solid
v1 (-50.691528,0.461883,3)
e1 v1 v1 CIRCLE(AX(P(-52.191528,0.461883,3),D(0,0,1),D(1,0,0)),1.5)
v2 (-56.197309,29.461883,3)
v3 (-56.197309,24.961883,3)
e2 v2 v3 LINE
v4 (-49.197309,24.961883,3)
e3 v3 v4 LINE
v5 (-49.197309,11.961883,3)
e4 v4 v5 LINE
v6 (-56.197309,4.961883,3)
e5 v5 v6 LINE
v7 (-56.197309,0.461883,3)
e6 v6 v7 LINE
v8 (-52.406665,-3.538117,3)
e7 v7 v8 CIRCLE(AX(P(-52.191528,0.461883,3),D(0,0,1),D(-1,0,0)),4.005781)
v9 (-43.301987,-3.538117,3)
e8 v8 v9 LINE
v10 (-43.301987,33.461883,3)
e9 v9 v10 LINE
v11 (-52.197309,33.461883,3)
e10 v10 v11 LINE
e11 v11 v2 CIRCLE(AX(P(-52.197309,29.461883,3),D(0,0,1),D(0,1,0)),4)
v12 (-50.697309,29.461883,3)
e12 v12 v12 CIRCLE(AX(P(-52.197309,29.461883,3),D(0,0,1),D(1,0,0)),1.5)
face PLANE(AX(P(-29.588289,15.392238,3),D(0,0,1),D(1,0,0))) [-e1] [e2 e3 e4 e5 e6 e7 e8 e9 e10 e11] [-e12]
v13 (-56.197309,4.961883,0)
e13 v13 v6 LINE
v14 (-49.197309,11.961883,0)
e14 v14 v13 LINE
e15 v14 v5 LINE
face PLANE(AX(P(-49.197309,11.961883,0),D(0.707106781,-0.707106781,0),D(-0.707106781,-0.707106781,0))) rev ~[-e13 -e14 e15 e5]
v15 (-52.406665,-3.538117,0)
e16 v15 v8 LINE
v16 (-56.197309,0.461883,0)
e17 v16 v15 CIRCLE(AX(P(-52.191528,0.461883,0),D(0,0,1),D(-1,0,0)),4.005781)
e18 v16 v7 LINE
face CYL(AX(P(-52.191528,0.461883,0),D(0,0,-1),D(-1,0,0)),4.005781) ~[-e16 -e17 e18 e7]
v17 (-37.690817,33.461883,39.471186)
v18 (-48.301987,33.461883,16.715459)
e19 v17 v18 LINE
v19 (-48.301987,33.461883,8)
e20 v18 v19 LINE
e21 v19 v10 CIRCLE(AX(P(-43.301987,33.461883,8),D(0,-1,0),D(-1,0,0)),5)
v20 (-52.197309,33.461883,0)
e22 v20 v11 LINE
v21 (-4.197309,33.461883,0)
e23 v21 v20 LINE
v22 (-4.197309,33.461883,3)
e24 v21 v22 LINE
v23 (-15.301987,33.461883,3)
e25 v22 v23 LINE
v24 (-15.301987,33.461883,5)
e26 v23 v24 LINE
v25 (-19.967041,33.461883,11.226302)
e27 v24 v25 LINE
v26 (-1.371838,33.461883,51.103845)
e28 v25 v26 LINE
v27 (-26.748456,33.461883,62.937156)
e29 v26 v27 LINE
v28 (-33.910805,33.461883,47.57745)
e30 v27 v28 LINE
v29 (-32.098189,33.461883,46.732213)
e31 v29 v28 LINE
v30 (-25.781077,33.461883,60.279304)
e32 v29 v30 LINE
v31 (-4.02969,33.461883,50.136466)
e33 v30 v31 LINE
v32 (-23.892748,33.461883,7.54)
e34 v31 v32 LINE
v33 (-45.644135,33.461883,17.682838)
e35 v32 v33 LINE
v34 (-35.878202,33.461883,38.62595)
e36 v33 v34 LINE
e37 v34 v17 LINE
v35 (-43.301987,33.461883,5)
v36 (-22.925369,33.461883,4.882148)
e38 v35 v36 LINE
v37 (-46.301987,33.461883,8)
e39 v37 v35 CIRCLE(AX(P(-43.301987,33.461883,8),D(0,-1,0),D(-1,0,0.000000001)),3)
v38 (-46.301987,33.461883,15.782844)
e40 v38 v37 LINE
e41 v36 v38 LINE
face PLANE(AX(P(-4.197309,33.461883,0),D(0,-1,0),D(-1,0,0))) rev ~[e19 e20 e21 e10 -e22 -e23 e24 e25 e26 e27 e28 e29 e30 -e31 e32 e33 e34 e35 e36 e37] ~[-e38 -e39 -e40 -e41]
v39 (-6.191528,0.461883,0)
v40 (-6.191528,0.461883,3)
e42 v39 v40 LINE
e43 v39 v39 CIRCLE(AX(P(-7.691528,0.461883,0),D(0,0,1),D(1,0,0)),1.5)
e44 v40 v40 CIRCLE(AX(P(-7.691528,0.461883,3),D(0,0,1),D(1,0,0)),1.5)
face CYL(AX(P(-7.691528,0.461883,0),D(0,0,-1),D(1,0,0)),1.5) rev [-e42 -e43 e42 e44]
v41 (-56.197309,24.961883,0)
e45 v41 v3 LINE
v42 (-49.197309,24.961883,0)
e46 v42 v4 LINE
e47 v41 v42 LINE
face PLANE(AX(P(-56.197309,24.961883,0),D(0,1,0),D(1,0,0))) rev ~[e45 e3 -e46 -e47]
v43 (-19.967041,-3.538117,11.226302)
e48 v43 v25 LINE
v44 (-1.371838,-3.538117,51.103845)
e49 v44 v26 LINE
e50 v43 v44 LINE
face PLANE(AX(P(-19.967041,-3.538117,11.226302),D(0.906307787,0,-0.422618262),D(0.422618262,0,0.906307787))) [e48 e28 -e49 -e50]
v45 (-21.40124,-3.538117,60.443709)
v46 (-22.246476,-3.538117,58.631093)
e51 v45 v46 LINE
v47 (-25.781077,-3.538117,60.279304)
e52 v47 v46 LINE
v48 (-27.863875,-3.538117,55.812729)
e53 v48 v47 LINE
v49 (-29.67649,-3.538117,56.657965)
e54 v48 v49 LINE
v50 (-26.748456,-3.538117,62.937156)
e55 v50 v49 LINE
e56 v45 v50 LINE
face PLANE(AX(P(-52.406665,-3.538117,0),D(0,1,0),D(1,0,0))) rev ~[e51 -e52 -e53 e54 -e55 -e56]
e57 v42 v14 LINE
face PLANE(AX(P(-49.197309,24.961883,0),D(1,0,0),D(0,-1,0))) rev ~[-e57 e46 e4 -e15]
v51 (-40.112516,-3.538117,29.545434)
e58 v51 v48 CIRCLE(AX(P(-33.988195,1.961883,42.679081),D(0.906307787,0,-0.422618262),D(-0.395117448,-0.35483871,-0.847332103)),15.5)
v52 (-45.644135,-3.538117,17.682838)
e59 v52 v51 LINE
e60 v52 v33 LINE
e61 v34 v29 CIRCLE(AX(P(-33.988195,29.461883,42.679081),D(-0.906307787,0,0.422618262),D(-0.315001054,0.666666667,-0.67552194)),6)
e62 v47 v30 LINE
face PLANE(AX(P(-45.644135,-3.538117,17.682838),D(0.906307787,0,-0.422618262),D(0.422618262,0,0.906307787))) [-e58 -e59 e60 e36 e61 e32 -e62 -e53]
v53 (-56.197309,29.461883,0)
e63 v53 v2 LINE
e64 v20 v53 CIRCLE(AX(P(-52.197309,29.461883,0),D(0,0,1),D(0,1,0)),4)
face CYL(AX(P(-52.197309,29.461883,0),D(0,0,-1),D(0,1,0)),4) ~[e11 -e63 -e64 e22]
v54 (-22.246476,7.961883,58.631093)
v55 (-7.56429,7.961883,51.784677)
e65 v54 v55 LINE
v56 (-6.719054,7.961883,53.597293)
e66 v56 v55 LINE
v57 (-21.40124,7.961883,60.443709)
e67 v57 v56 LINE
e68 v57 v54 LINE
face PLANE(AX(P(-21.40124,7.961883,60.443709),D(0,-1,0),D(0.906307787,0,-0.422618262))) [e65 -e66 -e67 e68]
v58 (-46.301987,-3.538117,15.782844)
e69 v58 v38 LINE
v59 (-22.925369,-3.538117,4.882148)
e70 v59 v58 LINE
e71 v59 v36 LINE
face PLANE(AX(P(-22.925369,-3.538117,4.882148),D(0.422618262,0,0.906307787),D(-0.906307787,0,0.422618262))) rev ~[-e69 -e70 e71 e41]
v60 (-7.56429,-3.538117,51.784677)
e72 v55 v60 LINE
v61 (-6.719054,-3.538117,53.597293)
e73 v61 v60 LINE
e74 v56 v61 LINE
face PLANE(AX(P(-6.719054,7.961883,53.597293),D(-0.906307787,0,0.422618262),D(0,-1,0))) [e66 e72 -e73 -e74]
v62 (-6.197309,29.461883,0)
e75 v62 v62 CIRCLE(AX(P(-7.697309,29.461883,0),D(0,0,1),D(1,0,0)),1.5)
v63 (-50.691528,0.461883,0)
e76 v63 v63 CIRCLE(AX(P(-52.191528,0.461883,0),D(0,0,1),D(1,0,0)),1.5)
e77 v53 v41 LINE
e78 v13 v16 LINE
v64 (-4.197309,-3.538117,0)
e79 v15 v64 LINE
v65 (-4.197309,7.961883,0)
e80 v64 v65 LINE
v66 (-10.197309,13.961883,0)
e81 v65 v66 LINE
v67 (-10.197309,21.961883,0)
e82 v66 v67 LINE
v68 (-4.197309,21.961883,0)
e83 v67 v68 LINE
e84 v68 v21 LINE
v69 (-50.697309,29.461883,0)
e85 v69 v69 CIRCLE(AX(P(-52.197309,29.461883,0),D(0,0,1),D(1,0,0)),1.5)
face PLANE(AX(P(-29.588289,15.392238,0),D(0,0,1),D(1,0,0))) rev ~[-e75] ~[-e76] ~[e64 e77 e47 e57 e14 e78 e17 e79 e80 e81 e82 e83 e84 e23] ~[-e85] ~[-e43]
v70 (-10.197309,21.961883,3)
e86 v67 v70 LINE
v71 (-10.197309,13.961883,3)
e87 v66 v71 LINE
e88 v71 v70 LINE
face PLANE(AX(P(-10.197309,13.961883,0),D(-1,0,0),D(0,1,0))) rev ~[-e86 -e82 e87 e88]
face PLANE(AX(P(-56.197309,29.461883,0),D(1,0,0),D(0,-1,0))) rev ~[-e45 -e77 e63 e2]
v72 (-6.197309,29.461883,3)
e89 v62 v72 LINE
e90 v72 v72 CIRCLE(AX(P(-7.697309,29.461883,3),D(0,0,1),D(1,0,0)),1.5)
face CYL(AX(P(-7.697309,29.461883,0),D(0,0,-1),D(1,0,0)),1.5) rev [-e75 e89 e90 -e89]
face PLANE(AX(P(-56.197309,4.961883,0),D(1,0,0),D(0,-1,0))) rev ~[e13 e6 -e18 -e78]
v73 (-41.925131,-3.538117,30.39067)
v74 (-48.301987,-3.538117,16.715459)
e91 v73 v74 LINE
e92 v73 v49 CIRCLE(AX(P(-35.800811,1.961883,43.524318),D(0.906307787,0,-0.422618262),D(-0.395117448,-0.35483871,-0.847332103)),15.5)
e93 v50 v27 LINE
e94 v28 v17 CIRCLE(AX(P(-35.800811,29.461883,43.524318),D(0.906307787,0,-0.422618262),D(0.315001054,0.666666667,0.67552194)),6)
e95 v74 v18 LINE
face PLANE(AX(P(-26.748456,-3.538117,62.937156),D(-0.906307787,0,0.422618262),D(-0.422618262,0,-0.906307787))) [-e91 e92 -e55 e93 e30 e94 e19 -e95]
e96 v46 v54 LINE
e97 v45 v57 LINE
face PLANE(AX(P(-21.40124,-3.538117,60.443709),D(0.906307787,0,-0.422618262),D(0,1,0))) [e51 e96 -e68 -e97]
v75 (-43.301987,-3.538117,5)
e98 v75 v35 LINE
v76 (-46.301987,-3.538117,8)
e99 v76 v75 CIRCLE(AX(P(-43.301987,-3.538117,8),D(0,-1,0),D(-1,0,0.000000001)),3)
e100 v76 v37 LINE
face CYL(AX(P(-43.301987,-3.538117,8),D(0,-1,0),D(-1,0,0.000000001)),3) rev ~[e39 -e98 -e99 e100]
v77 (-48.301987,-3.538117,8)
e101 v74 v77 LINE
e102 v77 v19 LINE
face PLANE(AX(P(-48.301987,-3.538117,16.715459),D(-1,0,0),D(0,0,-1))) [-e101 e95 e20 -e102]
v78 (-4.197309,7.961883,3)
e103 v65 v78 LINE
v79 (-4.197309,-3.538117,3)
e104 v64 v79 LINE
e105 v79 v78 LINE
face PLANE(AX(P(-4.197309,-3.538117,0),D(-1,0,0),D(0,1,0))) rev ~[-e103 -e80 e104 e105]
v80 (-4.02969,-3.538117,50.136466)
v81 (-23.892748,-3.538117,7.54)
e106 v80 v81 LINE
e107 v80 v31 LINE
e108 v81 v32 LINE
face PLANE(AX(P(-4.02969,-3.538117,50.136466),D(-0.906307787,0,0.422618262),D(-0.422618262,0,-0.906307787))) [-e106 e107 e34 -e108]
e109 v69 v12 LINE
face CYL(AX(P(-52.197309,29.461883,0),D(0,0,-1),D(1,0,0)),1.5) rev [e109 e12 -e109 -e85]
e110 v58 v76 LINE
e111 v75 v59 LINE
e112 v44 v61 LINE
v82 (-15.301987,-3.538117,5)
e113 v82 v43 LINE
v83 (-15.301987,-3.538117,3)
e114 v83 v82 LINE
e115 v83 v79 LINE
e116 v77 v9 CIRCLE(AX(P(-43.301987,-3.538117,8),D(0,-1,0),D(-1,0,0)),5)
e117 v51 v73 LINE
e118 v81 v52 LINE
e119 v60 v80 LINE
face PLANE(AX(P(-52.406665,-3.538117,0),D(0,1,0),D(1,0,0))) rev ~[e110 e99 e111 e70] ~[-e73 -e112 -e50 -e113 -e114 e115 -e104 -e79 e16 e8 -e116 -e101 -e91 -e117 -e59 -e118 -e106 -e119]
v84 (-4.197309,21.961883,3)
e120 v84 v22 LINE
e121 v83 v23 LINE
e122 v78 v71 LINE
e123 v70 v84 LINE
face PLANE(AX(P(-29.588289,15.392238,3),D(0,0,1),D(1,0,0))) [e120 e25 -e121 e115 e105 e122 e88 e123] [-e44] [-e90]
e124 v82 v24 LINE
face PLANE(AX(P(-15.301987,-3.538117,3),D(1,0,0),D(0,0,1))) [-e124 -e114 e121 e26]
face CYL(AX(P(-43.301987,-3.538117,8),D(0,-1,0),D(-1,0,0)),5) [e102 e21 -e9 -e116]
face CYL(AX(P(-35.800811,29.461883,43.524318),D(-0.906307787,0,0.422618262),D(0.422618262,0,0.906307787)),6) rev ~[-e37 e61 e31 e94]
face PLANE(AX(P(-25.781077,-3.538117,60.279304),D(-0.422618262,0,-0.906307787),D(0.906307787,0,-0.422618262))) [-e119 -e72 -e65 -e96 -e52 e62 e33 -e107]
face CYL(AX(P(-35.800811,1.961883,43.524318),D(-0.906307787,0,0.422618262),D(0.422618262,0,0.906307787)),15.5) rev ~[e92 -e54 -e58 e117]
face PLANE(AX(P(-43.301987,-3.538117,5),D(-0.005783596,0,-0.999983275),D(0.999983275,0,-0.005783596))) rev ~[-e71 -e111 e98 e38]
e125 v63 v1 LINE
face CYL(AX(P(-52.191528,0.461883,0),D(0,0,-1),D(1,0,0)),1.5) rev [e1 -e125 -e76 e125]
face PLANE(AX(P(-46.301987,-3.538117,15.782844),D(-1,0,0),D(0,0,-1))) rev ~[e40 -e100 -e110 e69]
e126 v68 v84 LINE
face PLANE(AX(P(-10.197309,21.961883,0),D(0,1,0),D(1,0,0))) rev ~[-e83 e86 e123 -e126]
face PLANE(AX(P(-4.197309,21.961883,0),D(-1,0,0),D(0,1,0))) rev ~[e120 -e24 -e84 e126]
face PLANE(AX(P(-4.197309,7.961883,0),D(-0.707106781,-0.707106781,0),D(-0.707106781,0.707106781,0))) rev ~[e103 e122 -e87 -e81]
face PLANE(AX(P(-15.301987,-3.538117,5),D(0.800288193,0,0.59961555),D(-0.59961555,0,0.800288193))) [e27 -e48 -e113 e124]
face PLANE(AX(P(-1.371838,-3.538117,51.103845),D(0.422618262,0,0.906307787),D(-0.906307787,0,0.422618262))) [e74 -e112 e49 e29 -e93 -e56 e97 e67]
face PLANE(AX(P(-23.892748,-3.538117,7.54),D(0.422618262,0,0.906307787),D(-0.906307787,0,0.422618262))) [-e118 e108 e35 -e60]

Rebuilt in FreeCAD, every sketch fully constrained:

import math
import FreeCAD as App
import Part
import Sketcher
from FreeCAD import Vector
Q = App.Units.Quantity


def add_polygon(sketch, points):
    """Adds a closed chain of lines whose ends are joined by coincident constraints."""
    first, n = sketch.GeometryCount, len(points)
    for a, b in zip(points, points[1:] + points[:1]):
        sketch.addGeometry(Part.LineSegment(App.Vector(*a, 0), App.Vector(*b, 0)), False)
    for i in range(n):
        sketch.addConstraint(Sketcher.Constraint("Coincident", first + i, 2, first + (i + 1) % n, 1))

doc = App.newDocument("Part")
body = doc.addObject("PartDesign::Body", "Body")

sketch1 = doc.addObject("Sketcher::SketchObject", "Sketch")
body.addObject(sketch1)
sketch1.AttachmentSupport = (doc.XY_Plane, [""])
sketch1.MapMode = "FlatFace"
sketch1.addGeometry([
    Part.LineSegment(Vector(-49.2, 12, 0), Vector(-56.2, 5, 0)),
    Part.LineSegment(Vector(-56.2, 5, 0), Vector(-56.2, 0.5, 0)),
    Part.ArcOfCircle(Part.Circle(Vector(-52.2, 0.5, 0), Vector(0, 0, 1), 4), math.radians(180), math.radians(267)),
    Part.LineSegment(Vector(-52.4, -3.5, 0), Vector(-4.2, -3.5, 0)),
    Part.LineSegment(Vector(-4.2, -3.5, 0), Vector(-4.2, 8, 0)),
    Part.LineSegment(Vector(-4.2, 8, 0), Vector(-10.2, 14, 0)),
    Part.LineSegment(Vector(-10.2, 14, 0), Vector(-10.2, 22, 0)),
    Part.LineSegment(Vector(-10.2, 22, 0), Vector(-4.2, 22, 0)),
    Part.LineSegment(Vector(-4.2, 22, 0), Vector(-4.2, 33.5, 0)),
    Part.LineSegment(Vector(-4.2, 33.5, 0), Vector(-52.2, 33.5, 0)),
    Part.ArcOfCircle(Part.Circle(Vector(-52.2, 29.5, 0), Vector(0, 0, 1), 4), math.radians(90), math.radians(180)),
    Part.LineSegment(Vector(-56.2, 29.5, 0), Vector(-56.2, 25, 0)),
    Part.LineSegment(Vector(-56.2, 25, 0), Vector(-49.2, 25, 0)),
    Part.LineSegment(Vector(-49.2, 25, 0), Vector(-49.2, 12, 0)),
    Part.Circle(Vector(-52.2, 0.5, 0), Vector(0, 0, 1), 1.5),
    Part.Circle(Vector(-7.7, 0.5, 0), Vector(0, 0, 1), 1.5),
    Part.Circle(Vector(-52.2, 29.5, 0), Vector(0, 0, 1), 1.5),
    Part.Circle(Vector(-7.7, 29.5, 0), Vector(0, 0, 1), 1.5),
], False)
sketch1.addConstraint([
    Sketcher.Constraint("Coincident", 0, 2, 1, 1),
    Sketcher.Constraint("Tangent", 1, 2, 2, 1),
    Sketcher.Constraint("Coincident", 2, 2, 3, 1),
    Sketcher.Constraint("Coincident", 3, 2, 4, 1),
    Sketcher.Constraint("Coincident", 4, 2, 5, 1),
    Sketcher.Constraint("Coincident", 5, 2, 6, 1),
    Sketcher.Constraint("Coincident", 6, 2, 7, 1),
    Sketcher.Constraint("Coincident", 7, 2, 8, 1),
    Sketcher.Constraint("Coincident", 8, 2, 9, 1),
    Sketcher.Constraint("Tangent", 9, 2, 10, 1),
    Sketcher.Constraint("Tangent", 10, 2, 11, 1),
    Sketcher.Constraint("Coincident", 11, 2, 12, 1),
    Sketcher.Constraint("Coincident", 12, 2, 13, 1),
    Sketcher.Constraint("Coincident", 13, 2, 0, 1),
    Sketcher.Constraint("Vertical", 1),
    Sketcher.Constraint("Horizontal", 3),
    Sketcher.Constraint("Vertical", 4),
    Sketcher.Constraint("Vertical", 6),
    Sketcher.Constraint("Horizontal", 7),
    Sketcher.Constraint("Vertical", 8),
    Sketcher.Constraint("Horizontal", 9),
    Sketcher.Constraint("Vertical", 11),
    Sketcher.Constraint("Horizontal", 12),
    Sketcher.Constraint("Vertical", 13),
    Sketcher.Constraint("Coincident", 14, 3, 2, 3),
    Sketcher.Constraint("Coincident", 16, 3, 10, 3),
    Sketcher.Constraint("Equal", 14, 15),
    Sketcher.Constraint("Equal", 15, 16),
    Sketcher.Constraint("Equal", 16, 17),
    Sketcher.Constraint("Perpendicular", 0, 5),
    Sketcher.Constraint("Horizontal", 14, 3, 15, 3),
    Sketcher.Constraint("Horizontal", 16, 3, 17, 3),
    Sketcher.Constraint("Vertical", 4, 2, 7, 2),
    Sketcher.Constraint("Vertical", 1, 2, 10, 2),
    Sketcher.Constraint("Equal", 4, 8),
    Sketcher.Constraint("Equal", 1, 11),
    Sketcher.Constraint("Diameter", 14, Q("3 mm")),
    Sketcher.Constraint("Radius", 10, Q("4 mm")),
    Sketcher.Constraint("DistanceX", 7, 1, 7, 2, Q("6 mm")),
    Sketcher.Constraint("DistanceX", 9, 2, 9, 1, Q("48 mm")),
    Sketcher.Constraint("DistanceX", 12, 1, 12, 2, Q("7 mm")),
    Sketcher.Constraint("DistanceY", 6, 1, 6, 2, Q("8 mm")),
    Sketcher.Constraint("DistanceY", 13, 2, 13, 1, Q("13 mm")),
    Sketcher.Constraint("Angle", 0, Q("-135 deg")),
    Sketcher.Constraint("DistanceY", 1, 2, 1, 1, Q("4.5 mm")),
    Sketcher.Constraint("DistanceY", 4, 1, 4, 2, Q("11.5 mm")),
    Sketcher.Constraint("DistanceX", 2, 3, 15, 3, Q("44.5 mm")),
    Sketcher.Constraint("DistanceX", 16, 3, 17, 3, Q("44.5 mm")),
    Sketcher.Constraint("Radius", 2, Q("4.005781 mm")),
    Sketcher.Constraint("DistanceX", 2, 3, -1, 1, Q("52.191528 mm")),
    Sketcher.Constraint("DistanceY", -1, 1, 2, 3, Q("0.461883 mm")),
])
pad1 = doc.addObject("PartDesign::Pad", "Pad")
body.addObject(pad1)
pad1.Profile = sketch1
pad1.Length = 3

sketch2 = doc.addObject("Sketcher::SketchObject", "Sketch001")
body.addObject(sketch2)
sketch2.AttachmentSupport = (doc.XZ_Plane, [""])
sketch2.MapMode = "FlatFace"
sketch2.AttachmentOffset = App.Placement(Vector(0, 0, 3.538117), App.Rotation())
sketch2.addGeometry(Part.LineSegment(Vector(-15.3, 3, 0), Vector(-15.3, 5, 0)), False)
sketch2.addGeometry(Part.LineSegment(Vector(-15.3, 5, 0), Vector(-20, 11.2, 0)), False)
sketch2.addGeometry(Part.LineSegment(Vector(-20, 11.2, 0), Vector(-1.4, 51.1, 0)), False)
sketch2.addGeometry(Part.LineSegment(Vector(-1.4, 51.1, 0), Vector(-26.7, 62.9, 0)), False)
sketch2.addGeometry(Part.LineSegment(Vector(-26.7, 62.9, 0), Vector(-48.3, 16.7, 0)), False)
sketch2.addGeometry(Part.LineSegment(Vector(-48.3, 16.7, 0), Vector(-48.3, 8, 0)), False)
sketch2.addGeometry(Part.ArcOfCircle(Part.Circle(Vector(-43.3, 8, 0), Vector(0, 0, 1), 5), math.radians(180), math.radians(270)), False)
sketch2.addGeometry(Part.LineSegment(Vector(-43.3, 3, 0), Vector(-15.3, 3, 0)), False)
sketch2.addGeometry(Part.LineSegment(Vector(-22.9, 4.9, 0), Vector(-43.3, 5, 0)), False)
sketch2.addGeometry(Part.ArcOfCircle(Part.Circle(Vector(-43.3, 8, 0), Vector(0, 0, 1), 3), math.radians(180), math.radians(270)), False)
sketch2.addGeometry(Part.LineSegment(Vector(-46.3, 8, 0), Vector(-46.3, 15.8, 0)), False)
sketch2.addGeometry(Part.LineSegment(Vector(-46.3, 15.8, 0), Vector(-22.9, 4.9, 0)), False)
add_polygon(sketch2, [(-23.9, 7.5), (-45.6, 17.7), (-25.8, 60.3), (-4, 50.1)])
sketch2.addConstraint([
    Sketcher.Constraint("Coincident", 0, 2, 1, 1),
    Sketcher.Constraint("Coincident", 1, 2, 2, 1),
    Sketcher.Constraint("Coincident", 2, 2, 3, 1),
    Sketcher.Constraint("Coincident", 3, 2, 4, 1),
    Sketcher.Constraint("Coincident", 4, 2, 5, 1),
    Sketcher.Constraint("Tangent", 5, 2, 6, 1),
    Sketcher.Constraint("Tangent", 6, 2, 7, 1),
    Sketcher.Constraint("Coincident", 7, 2, 0, 1),
    Sketcher.Constraint("Coincident", 8, 2, 9, 2),
    Sketcher.Constraint("Tangent", 9, 1, 10, 1),
    Sketcher.Constraint("Coincident", 10, 2, 11, 1),
    Sketcher.Constraint("Coincident", 11, 2, 8, 1),
    Sketcher.Constraint("Vertical", 0),
    Sketcher.Constraint("Vertical", 5),
    Sketcher.Constraint("Horizontal", 7),
    Sketcher.Constraint("Vertical", 10),
    Sketcher.Constraint("Coincident", 9, 3, 6, 3),
    Sketcher.Constraint("Perpendicular", 2, 3),
    Sketcher.Constraint("Perpendicular", 3, 4),
    Sketcher.Constraint("Perpendicular", 4, 11),
    Sketcher.Constraint("Parallel", 11, 12),
    Sketcher.Constraint("Perpendicular", 12, 13),
    Sketcher.Constraint("Perpendicular", 13, 14),
    Sketcher.Constraint("Perpendicular", 14, 15),
    Sketcher.Constraint("Horizontal", 0, 2, 8, 2),
    Sketcher.Constraint("Vertical", 6, 2, 8, 2),
    Sketcher.Constraint("Radius", 6, Q("5 mm")),
    Sketcher.Constraint("Radius", 9, Q("3 mm")),
    Sketcher.Constraint("DistanceX", 7, 1, 7, 2, Q("28 mm")),
    Sketcher.Constraint("Angle", 2, Q("65 deg")),
    Sketcher.Constraint("Distance", 2, Q("44 mm")),
    Sketcher.Constraint("Distance", 3, Q("28 mm")),
    Sketcher.Constraint("Distance", 4, Q("51 mm")),
    Sketcher.Constraint("Distance", 12, Q("24 mm")),
    Sketcher.Constraint("Distance", 13, Q("47 mm")),
    Sketcher.Constraint("DistanceY", -1, 1, 6, 3, Q("8 mm")),
    Sketcher.Constraint("DistanceY", -1, 1, 15, 2, Q("7.54 mm")),
    Sketcher.Constraint("DistanceY", 5, 2, 5, 1, Q("8.715459 mm")),
    Sketcher.Constraint("Distance", 8, Q("20.376959 mm")),
    Sketcher.Constraint("DistanceY", 10, 1, 10, 2, Q("7.782844 mm")),
    Sketcher.Constraint("DistanceX", 1, 2, -1, 1, Q("19.967041 mm")),
    Sketcher.Constraint("DistanceX", 14, 2, -1, 1, Q("4.02969 mm")),
])
pad2 = doc.addObject("PartDesign::Pad", "Pad001")
body.addObject(pad2)
pad2.Profile = sketch2
pad2.Length = 37
pad2.Reversed = True

sketch3 = doc.addObject("Sketcher::SketchObject", "Sketch002")
body.addObject(sketch3)
sketch3.Placement = App.Placement(Vector(-46.077345, 0, 21.486219), App.Rotation(Vector(0.422618262, 0, 0.906307787), Vector(0, 1, 0), Vector(-0.906307787, 0, 0.422618262), "ZXY"))
sketch3.addGeometry([
    Part.Circle(Vector(24, 2, 0), Vector(0, 0, 1), 16),
    Part.Circle(Vector(24, 29, 0), Vector(0, 0, 1), 6),
], False)
sketch3.addConstraint([
    Sketcher.Constraint("Vertical", 0, 3, 1, 3),
    Sketcher.Constraint("Diameter", 0, Q("31 mm")),
    Sketcher.Constraint("Diameter", 1, Q("12 mm")),
    Sketcher.Constraint("DistanceY", 0, 3, 1, 3, Q("27.5 mm")),
    Sketcher.Constraint("DistanceX", -1, 1, 0, 3, Q("24.316352 mm")),
    Sketcher.Constraint("DistanceY", -1, 1, 0, 3, Q("1.961883 mm")),
])
pocket1 = doc.addObject("PartDesign::Pocket", "Pocket")
body.addObject(pocket1)
pocket1.Profile = sketch3
pocket1.Length = 2

sketch4 = doc.addObject("Sketcher::SketchObject", "Sketch003")
body.addObject(sketch4)
sketch4.Placement = App.Placement(Vector(19.32889, 0, 41.450937), App.Rotation(Vector(0.906307787, 0, -0.422618262), Vector(0, 1, 0), Vector(0.422618262, 0, 0.906307787), "ZXY"))
add_polygon(sketch4, [(-45, -4), (-29, -4), (-29, 8), (-45, 8)])
sketch4.addConstraint([
    Sketcher.Constraint("Horizontal", 0),
    Sketcher.Constraint("Vertical", 1),
    Sketcher.Constraint("Horizontal", 2),
    Sketcher.Constraint("Vertical", 3),
    Sketcher.Constraint("DistanceX", 0, 1, 0, 2, Q("16.2 mm")),
    Sketcher.Constraint("DistanceY", 1, 1, 1, 2, Q("11.5 mm")),
    Sketcher.Constraint("DistanceX", 0, 2, -1, 1, Q("28.740725 mm")),
    Sketcher.Constraint("DistanceY", 0, 2, -1, 1, Q("3.538117 mm")),
])
pocket2 = doc.addObject("PartDesign::Pocket", "Pocket001")
body.addObject(pocket2)
pocket2.Profile = sketch4
pocket2.Length = 2

doc.recompute()
